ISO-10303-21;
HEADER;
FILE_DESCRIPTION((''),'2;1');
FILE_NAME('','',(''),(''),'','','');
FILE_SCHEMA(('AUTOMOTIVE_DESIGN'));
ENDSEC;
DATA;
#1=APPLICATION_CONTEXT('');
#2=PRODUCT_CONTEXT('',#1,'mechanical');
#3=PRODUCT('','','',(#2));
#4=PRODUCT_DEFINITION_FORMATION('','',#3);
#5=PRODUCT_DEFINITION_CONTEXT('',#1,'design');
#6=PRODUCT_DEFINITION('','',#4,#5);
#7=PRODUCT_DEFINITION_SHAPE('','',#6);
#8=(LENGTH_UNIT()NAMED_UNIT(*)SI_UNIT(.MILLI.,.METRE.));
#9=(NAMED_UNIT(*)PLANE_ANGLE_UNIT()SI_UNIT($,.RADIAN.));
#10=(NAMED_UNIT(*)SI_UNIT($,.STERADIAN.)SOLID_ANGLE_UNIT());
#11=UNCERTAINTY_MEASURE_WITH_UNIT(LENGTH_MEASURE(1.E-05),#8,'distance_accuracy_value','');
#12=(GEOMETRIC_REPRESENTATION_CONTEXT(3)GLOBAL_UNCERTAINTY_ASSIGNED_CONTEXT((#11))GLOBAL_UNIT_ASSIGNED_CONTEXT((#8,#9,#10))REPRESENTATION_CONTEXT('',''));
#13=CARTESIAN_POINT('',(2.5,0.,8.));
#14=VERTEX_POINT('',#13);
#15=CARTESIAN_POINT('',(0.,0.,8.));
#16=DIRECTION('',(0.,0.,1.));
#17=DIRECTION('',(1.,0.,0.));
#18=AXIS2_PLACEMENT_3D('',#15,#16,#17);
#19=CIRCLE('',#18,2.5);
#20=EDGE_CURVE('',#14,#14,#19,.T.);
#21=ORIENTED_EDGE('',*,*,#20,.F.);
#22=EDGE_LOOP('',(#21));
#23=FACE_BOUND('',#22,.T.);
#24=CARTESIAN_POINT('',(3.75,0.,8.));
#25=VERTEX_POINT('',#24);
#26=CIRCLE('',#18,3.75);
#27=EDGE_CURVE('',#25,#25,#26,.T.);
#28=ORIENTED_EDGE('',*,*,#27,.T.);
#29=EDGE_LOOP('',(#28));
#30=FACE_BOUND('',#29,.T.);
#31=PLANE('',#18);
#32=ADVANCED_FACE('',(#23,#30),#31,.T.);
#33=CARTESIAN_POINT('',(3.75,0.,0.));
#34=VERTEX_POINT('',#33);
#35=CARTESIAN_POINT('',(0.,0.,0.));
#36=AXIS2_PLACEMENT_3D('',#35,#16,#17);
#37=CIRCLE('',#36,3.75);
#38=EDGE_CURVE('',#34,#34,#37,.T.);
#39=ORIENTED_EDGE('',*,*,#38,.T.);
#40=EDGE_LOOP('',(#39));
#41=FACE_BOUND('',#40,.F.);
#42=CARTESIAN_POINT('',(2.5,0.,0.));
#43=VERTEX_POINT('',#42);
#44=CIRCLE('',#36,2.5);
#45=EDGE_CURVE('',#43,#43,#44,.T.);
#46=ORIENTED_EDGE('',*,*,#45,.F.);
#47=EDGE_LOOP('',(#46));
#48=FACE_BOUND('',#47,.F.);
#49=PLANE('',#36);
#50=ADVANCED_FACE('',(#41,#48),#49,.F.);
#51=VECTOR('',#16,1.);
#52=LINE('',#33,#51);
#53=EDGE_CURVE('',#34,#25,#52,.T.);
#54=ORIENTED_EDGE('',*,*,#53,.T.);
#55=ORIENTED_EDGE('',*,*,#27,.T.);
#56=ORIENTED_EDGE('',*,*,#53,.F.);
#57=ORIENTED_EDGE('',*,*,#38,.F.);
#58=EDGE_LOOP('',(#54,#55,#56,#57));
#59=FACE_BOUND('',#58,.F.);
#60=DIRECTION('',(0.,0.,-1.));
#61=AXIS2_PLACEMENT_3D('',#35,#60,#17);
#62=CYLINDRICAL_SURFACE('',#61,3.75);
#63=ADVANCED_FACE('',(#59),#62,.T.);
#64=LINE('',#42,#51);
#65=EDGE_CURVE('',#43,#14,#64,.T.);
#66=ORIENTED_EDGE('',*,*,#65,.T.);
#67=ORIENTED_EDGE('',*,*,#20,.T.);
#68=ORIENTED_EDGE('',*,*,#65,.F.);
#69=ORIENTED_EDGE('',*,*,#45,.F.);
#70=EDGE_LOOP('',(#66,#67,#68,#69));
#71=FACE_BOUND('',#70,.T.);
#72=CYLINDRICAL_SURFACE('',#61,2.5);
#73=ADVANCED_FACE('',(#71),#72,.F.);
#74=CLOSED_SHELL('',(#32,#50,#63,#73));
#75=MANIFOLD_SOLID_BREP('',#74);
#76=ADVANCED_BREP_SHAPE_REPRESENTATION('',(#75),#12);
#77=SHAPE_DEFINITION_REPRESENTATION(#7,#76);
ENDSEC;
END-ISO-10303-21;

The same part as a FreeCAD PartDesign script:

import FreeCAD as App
import Part
import Sketcher

doc = App.newDocument("Part")
body = doc.addObject("PartDesign::Body", "Body")

# Sketch on XY plane
sketch1 = doc.addObject("Sketcher::SketchObject", "Sketch")
body.addObject(sketch1)
sketch1.AttachmentSupport = (doc.XY_Plane, [""])
sketch1.MapMode = "FlatFace"
sketch1.addGeometry(Part.Circle(App.Vector(0, 0, 0), App.Vector(0, 0, 1), 3.8), False)
sketch1.addGeometry(Part.Circle(App.Vector(0, 0, 0), App.Vector(0, 0, 1), 2.5), False)
sketch1.addConstraint(Sketcher.Constraint("Coincident", 0, 3, -1, 1))
sketch1.addConstraint(Sketcher.Constraint("Coincident", 1, 3, -1, 1))
sketch1.addConstraint(Sketcher.Constraint("Diameter", 1, 5.0))
sketch1.addConstraint(Sketcher.Constraint("Diameter", 0, 7.5))
pad1 = doc.addObject("PartDesign::Pad", "Pad")
body.addObject(pad1)
pad1.Profile = sketch1
pad1.Length = 8

doc.recompute()
